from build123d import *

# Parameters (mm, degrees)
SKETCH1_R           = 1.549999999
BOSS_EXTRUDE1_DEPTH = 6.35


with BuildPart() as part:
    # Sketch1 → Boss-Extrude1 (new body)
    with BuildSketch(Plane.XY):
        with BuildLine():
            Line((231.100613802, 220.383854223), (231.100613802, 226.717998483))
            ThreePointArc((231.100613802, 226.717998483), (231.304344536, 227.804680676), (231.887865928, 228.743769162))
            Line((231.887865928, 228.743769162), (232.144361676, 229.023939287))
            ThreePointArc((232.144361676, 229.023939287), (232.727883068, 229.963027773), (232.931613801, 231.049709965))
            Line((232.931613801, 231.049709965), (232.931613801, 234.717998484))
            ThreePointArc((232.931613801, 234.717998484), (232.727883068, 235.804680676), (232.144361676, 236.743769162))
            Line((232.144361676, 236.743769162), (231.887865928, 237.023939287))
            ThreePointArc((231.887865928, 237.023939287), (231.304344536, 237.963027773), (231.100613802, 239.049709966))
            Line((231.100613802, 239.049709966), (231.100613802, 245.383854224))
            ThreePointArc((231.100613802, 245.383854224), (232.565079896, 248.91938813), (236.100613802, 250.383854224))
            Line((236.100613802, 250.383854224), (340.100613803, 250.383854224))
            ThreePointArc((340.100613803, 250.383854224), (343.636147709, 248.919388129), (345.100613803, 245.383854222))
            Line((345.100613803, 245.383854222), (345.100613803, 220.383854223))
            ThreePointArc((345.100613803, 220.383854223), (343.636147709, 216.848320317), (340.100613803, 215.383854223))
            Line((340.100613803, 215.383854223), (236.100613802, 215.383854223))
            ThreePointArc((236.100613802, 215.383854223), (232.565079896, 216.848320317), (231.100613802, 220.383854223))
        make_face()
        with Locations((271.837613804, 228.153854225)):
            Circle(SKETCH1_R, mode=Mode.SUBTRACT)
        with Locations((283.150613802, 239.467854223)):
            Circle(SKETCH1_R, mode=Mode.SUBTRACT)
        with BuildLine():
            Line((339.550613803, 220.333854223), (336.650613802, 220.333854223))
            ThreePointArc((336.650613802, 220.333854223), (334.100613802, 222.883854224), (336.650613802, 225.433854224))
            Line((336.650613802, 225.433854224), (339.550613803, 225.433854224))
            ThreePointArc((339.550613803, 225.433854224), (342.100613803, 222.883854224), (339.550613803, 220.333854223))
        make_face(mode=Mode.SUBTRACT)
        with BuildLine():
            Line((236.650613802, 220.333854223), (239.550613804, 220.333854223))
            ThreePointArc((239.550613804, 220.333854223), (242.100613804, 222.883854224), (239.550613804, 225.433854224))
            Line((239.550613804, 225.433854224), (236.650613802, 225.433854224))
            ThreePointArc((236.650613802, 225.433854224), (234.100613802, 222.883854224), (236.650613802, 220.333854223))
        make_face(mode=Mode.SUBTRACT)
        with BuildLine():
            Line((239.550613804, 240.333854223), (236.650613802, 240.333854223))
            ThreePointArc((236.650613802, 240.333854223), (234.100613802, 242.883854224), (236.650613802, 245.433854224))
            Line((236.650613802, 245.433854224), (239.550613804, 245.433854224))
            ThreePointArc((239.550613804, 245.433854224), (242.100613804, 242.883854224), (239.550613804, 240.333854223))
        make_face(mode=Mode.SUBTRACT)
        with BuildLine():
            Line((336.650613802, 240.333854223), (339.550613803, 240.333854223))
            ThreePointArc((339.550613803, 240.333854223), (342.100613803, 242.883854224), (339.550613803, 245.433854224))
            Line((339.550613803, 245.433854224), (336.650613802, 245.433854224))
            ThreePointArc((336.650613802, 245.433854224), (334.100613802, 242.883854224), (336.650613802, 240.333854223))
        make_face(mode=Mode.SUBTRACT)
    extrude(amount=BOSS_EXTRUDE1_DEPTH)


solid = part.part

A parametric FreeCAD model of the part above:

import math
import FreeCAD as App
import Part
import Sketcher

V = App.Vector

doc = App.newDocument("Part")
params = doc.addObject("Spreadsheet::Sheet", "Params")
for row, (alias, value) in enumerate([
    ("sketch1_radius", "5 mm"),
    ("sketch1_radius2", "3 mm"),
    ("sketch1_diameter", "3.1 mm"),
    ("sketch1_width", "104 mm"),
    ("sketch1_height", "25 mm"),
    ("pad1_length", "6.35 mm"),
], start=1):
    params.set(f"A{row}", alias)
    params.set(f"B{row}", "=" + value)
    params.setAlias(f"B{row}", alias)

body = doc.addObject("PartDesign::Body", "Body")

# Sketch on XY plane
sketch1 = doc.addObject("Sketcher::SketchObject", "Sketch")
body.addObject(sketch1)
sketch1.AttachmentSupport = (doc.XY_Plane, [""])
sketch1.MapMode = "FlatFace"
sketch1.addGeometry([
    Part.LineSegment(V(231.1, 226.72, 0), V(231.1, 220.38, 0)),  # 0
    Part.ArcOfCircle(Part.Circle(V(236.1, 220.38, 0), V(0, 0, 1), 5), math.radians(180), math.radians(270)),  # 1
    Part.LineSegment(V(236.1, 215.38, 0), V(340.1, 215.38, 0)),  # 2
    Part.ArcOfCircle(Part.Circle(V(340.1, 220.38, 0), V(0, 0, 1), 5), math.radians(-90), math.radians(0)),  # 3
    Part.LineSegment(V(345.1, 220.38, 0), V(345.1, 245.38, 0)),  # 4
    Part.ArcOfCircle(Part.Circle(V(340.1, 245.38, 0), V(0, 0, 1), 5), math.radians(0), math.radians(90)),  # 5
    Part.LineSegment(V(340.1, 250.38, 0), V(236.1, 250.38, 0)),  # 6
    Part.ArcOfCircle(Part.Circle(V(236.1, 245.38, 0), V(0, 0, 1), 5), math.radians(90), math.radians(180)),  # 7
    Part.LineSegment(V(231.1, 245.38, 0), V(231.1, 239.05, 0)),  # 8
    Part.ArcOfCircle(Part.Circle(V(234.1, 239.05, 0), V(0, 0, 1), 3), math.radians(-180), math.radians(-138)),  # 9
    Part.LineSegment(V(231.89, 237.02, 0), V(232.14, 236.74, 0)),  # 10
    Part.ArcOfCircle(Part.Circle(V(229.93, 234.72, 0), V(0, 0, 1), 3), math.radians(0), math.radians(42)),  # 11
    Part.LineSegment(V(232.93, 234.72, 0), V(232.93, 231.05, 0)),  # 12
    Part.ArcOfCircle(Part.Circle(V(229.93, 231.05, 0), V(0, 0, 1), 3), math.radians(-42), math.radians(0)),  # 13
    Part.LineSegment(V(232.14, 229.02, 0), V(231.89, 228.74, 0)),  # 14
    Part.ArcOfCircle(Part.Circle(V(234.1, 226.72, 0), V(0, 0, 1), 3), math.radians(138), math.radians(180)),  # 15
    Part.LineSegment(V(339.55, 220.33, 0), V(336.65, 220.33, 0)),  # 16
    Part.ArcOfCircle(Part.Circle(V(336.65, 222.88, 0), V(0, 0, 1), 2.55), math.radians(90), math.radians(270)),  # 17
    Part.LineSegment(V(336.65, 225.43, 0), V(339.55, 225.43, 0)),  # 18
    Part.ArcOfCircle(Part.Circle(V(339.55, 222.88, 0), V(0, 0, 1), 2.55), math.radians(-90), math.radians(90)),  # 19
    Part.ArcOfCircle(Part.Circle(V(236.65, 222.88, 0), V(0, 0, 1), 2.55), math.radians(90), math.radians(270)),  # 20
    Part.LineSegment(V(236.65, 225.43, 0), V(239.55, 225.43, 0)),  # 21
    Part.ArcOfCircle(Part.Circle(V(239.55, 222.88, 0), V(0, 0, 1), 2.55), math.radians(-90), math.radians(90)),  # 22
    Part.LineSegment(V(239.55, 220.33, 0), V(236.65, 220.33, 0)),  # 23
    Part.Circle(V(271.84, 228.15, 0), V(0, 0, 1), 1.55),  # 24
    Part.ArcOfCircle(Part.Circle(V(336.65, 242.88, 0), V(0, 0, 1), 2.55), math.radians(90), math.radians(270)),  # 25
    Part.LineSegment(V(336.65, 245.43, 0), V(339.55, 245.43, 0)),  # 26
    Part.ArcOfCircle(Part.Circle(V(339.55, 242.88, 0), V(0, 0, 1), 2.55), math.radians(-90), math.radians(90)),  # 27
    Part.LineSegment(V(339.55, 240.33, 0), V(336.65, 240.33, 0)),  # 28
    Part.Circle(V(283.15, 239.47, 0), V(0, 0, 1), 1.55),  # 29
    Part.LineSegment(V(239.55, 240.33, 0), V(236.65, 240.33, 0)),  # 30
    Part.ArcOfCircle(Part.Circle(V(236.65, 242.88, 0), V(0, 0, 1), 2.55), math.radians(90), math.radians(270)),  # 31
    Part.LineSegment(V(236.65, 245.43, 0), V(239.55, 245.43, 0)),  # 32
    Part.ArcOfCircle(Part.Circle(V(239.55, 242.88, 0), V(0, 0, 1), 2.55), math.radians(-90), math.radians(90)),  # 33
], False)
sketch1.addConstraint([
    Sketcher.Constraint("Tangent", 0, 2, 1, 1),
    Sketcher.Constraint("Tangent", 1, 2, 2, 1),
    Sketcher.Constraint("Tangent", 2, 2, 3, 1),
    Sketcher.Constraint("Tangent", 3, 2, 4, 1),
    Sketcher.Constraint("Tangent", 4, 2, 5, 1),
    Sketcher.Constraint("Tangent", 5, 2, 6, 1),
    Sketcher.Constraint("Tangent", 6, 2, 7, 1),
    Sketcher.Constraint("Tangent", 7, 2, 8, 1),
    Sketcher.Constraint("Tangent", 8, 2, 9, 1),
    Sketcher.Constraint("Tangent", 9, 2, 10, 1),
    Sketcher.Constraint("Tangent", 10, 2, 11, 2),
    Sketcher.Constraint("Tangent", 11, 1, 12, 1),
    Sketcher.Constraint("Tangent", 12, 2, 13, 2),
    Sketcher.Constraint("Tangent", 13, 1, 14, 1),
    Sketcher.Constraint("Tangent", 14, 2, 15, 1),
    Sketcher.Constraint("Tangent", 15, 2, 0, 1),
    Sketcher.Constraint("Tangent", 16, 2, 17, 2),
    Sketcher.Constraint("Tangent", 17, 1, 18, 1),
    Sketcher.Constraint("Tangent", 18, 2, 19, 2),
    Sketcher.Constraint("Tangent", 19, 1, 16, 1),
    Sketcher.Constraint("Tangent", 20, 1, 21, 1),
    Sketcher.Constraint("Tangent", 21, 2, 22, 2),
    Sketcher.Constraint("Tangent", 22, 1, 23, 1),
    Sketcher.Constraint("Tangent", 23, 2, 20, 2),
    Sketcher.Constraint("Tangent", 25, 1, 26, 1),
    Sketcher.Constraint("Tangent", 26, 2, 27, 2),
    Sketcher.Constraint("Tangent", 27, 1, 28, 1),
    Sketcher.Constraint("Tangent", 28, 2, 25, 2),
    Sketcher.Constraint("Tangent", 30, 2, 31, 2),
    Sketcher.Constraint("Tangent", 31, 1, 32, 1),
    Sketcher.Constraint("Tangent", 32, 2, 33, 2),
    Sketcher.Constraint("Tangent", 33, 1, 30, 1),
    Sketcher.Constraint("Vertical", 0),
    Sketcher.Constraint("Horizontal", 2),
    Sketcher.Constraint("Vertical", 4),
    Sketcher.Constraint("Horizontal", 6),
    Sketcher.Constraint("Vertical", 8),
    Sketcher.Constraint("Vertical", 12),
    Sketcher.Constraint("Horizontal", 16),
    Sketcher.Constraint("Horizontal", 18),
    Sketcher.Constraint("Horizontal", 21),
    Sketcher.Constraint("Horizontal", 23),
    Sketcher.Constraint("Horizontal", 26),
    Sketcher.Constraint("Horizontal", 28),
    Sketcher.Constraint("Horizontal", 30),
    Sketcher.Constraint("Horizontal", 32),
    Sketcher.Constraint("Equal", 1, 3),
    Sketcher.Constraint("Equal", 3, 5),
    Sketcher.Constraint("Equal", 5, 7),
    Sketcher.Constraint("Equal", 9, 11),
    Sketcher.Constraint("Equal", 11, 13),
    Sketcher.Constraint("Equal", 13, 15),
    Sketcher.Constraint("Equal", 19, 20),
    Sketcher.Constraint("Equal", 22, 25),
    Sketcher.Constraint("Equal", 24, 29),
    Sketcher.Constraint("Equal", 27, 31),
    Sketcher.Constraint("Horizontal", 19, 3, 20, 3),
    Sketcher.Constraint("Horizontal", 27, 3, 31, 3),
    Sketcher.Constraint("Vertical", 1, 3, 7, 3),
    Sketcher.Constraint("Vertical", 17, 3, 25, 3),
    Sketcher.Constraint("Vertical", 19, 3, 27, 3),
    Sketcher.Constraint("Vertical", 20, 3, 31, 3),
    Sketcher.Constraint("Vertical", 22, 3, 33, 3),
    Sketcher.Constraint("Vertical", 10, 2, 13, 1),
    Sketcher.Constraint("Equal", 18, 21),
    Sketcher.Constraint("Equal", 0, 8),
    Sketcher.Constraint("Radius", 1, 5.0),
    Sketcher.Constraint("Radius", 9, 3.0),
    Sketcher.Constraint("Diameter", 24, 3.1),
    Sketcher.Constraint("DistanceX", 2, 1, 2, 2, 104.0),
    Sketcher.Constraint("DistanceY", 4, 1, 4, 2, 25.0),
    Sketcher.Constraint("Radius", 17, 2.55),
    Sketcher.Constraint("DistanceX", 16, 2, 16, 1, 2.9),
    Sketcher.Constraint("DistanceY", 13, 3, 9, 3, 8.0),
    Sketcher.Constraint("DistanceY", 17, 3, 25, 3, 20.0),
    Sketcher.Constraint("DistanceY", 3, 3, 17, 3, 2.5),
    Sketcher.Constraint("DistanceX", 22, 3, 29, 3, 43.6),
    Sketcher.Constraint("DistanceX", 17, 3, 3, 3, 3.45),
    Sketcher.Constraint("DistanceX", 1, 3, 20, 3, 0.55),
    Sketcher.Constraint("DistanceY", 22, 3, 24, 3, 5.27),
    Sketcher.Constraint("DistanceY", -1, 1, 11, 3, 234.717998),
    Sketcher.Constraint("DistanceX", 11, 3, 9, 3, 4.169),
    Sketcher.Constraint("DistanceX", 22, 3, 24, 3, 32.287),
    Sketcher.Constraint("DistanceY", 24, 3, 29, 3, 11.314),
    Sketcher.Constraint("DistanceY", 12, 2, 12, 1, 3.668289),
    Sketcher.Constraint("DistanceX", -1, 1, 10, 2, 232.144362),
])
sketch1.setExpression("Constraints[66]", "Params.sketch1_radius")
sketch1.setExpression("Constraints[67]", "Params.sketch1_radius2")
sketch1.setExpression("Constraints[68]", "Params.sketch1_diameter")
sketch1.setExpression("Constraints[69]", "Params.sketch1_width")
sketch1.setExpression("Constraints[70]", "Params.sketch1_height")
pad1 = doc.addObject("PartDesign::Pad", "Pad")
body.addObject(pad1)
pad1.Profile = sketch1
pad1.setExpression("Length", "Params.pad1_length")

doc.recompute()
